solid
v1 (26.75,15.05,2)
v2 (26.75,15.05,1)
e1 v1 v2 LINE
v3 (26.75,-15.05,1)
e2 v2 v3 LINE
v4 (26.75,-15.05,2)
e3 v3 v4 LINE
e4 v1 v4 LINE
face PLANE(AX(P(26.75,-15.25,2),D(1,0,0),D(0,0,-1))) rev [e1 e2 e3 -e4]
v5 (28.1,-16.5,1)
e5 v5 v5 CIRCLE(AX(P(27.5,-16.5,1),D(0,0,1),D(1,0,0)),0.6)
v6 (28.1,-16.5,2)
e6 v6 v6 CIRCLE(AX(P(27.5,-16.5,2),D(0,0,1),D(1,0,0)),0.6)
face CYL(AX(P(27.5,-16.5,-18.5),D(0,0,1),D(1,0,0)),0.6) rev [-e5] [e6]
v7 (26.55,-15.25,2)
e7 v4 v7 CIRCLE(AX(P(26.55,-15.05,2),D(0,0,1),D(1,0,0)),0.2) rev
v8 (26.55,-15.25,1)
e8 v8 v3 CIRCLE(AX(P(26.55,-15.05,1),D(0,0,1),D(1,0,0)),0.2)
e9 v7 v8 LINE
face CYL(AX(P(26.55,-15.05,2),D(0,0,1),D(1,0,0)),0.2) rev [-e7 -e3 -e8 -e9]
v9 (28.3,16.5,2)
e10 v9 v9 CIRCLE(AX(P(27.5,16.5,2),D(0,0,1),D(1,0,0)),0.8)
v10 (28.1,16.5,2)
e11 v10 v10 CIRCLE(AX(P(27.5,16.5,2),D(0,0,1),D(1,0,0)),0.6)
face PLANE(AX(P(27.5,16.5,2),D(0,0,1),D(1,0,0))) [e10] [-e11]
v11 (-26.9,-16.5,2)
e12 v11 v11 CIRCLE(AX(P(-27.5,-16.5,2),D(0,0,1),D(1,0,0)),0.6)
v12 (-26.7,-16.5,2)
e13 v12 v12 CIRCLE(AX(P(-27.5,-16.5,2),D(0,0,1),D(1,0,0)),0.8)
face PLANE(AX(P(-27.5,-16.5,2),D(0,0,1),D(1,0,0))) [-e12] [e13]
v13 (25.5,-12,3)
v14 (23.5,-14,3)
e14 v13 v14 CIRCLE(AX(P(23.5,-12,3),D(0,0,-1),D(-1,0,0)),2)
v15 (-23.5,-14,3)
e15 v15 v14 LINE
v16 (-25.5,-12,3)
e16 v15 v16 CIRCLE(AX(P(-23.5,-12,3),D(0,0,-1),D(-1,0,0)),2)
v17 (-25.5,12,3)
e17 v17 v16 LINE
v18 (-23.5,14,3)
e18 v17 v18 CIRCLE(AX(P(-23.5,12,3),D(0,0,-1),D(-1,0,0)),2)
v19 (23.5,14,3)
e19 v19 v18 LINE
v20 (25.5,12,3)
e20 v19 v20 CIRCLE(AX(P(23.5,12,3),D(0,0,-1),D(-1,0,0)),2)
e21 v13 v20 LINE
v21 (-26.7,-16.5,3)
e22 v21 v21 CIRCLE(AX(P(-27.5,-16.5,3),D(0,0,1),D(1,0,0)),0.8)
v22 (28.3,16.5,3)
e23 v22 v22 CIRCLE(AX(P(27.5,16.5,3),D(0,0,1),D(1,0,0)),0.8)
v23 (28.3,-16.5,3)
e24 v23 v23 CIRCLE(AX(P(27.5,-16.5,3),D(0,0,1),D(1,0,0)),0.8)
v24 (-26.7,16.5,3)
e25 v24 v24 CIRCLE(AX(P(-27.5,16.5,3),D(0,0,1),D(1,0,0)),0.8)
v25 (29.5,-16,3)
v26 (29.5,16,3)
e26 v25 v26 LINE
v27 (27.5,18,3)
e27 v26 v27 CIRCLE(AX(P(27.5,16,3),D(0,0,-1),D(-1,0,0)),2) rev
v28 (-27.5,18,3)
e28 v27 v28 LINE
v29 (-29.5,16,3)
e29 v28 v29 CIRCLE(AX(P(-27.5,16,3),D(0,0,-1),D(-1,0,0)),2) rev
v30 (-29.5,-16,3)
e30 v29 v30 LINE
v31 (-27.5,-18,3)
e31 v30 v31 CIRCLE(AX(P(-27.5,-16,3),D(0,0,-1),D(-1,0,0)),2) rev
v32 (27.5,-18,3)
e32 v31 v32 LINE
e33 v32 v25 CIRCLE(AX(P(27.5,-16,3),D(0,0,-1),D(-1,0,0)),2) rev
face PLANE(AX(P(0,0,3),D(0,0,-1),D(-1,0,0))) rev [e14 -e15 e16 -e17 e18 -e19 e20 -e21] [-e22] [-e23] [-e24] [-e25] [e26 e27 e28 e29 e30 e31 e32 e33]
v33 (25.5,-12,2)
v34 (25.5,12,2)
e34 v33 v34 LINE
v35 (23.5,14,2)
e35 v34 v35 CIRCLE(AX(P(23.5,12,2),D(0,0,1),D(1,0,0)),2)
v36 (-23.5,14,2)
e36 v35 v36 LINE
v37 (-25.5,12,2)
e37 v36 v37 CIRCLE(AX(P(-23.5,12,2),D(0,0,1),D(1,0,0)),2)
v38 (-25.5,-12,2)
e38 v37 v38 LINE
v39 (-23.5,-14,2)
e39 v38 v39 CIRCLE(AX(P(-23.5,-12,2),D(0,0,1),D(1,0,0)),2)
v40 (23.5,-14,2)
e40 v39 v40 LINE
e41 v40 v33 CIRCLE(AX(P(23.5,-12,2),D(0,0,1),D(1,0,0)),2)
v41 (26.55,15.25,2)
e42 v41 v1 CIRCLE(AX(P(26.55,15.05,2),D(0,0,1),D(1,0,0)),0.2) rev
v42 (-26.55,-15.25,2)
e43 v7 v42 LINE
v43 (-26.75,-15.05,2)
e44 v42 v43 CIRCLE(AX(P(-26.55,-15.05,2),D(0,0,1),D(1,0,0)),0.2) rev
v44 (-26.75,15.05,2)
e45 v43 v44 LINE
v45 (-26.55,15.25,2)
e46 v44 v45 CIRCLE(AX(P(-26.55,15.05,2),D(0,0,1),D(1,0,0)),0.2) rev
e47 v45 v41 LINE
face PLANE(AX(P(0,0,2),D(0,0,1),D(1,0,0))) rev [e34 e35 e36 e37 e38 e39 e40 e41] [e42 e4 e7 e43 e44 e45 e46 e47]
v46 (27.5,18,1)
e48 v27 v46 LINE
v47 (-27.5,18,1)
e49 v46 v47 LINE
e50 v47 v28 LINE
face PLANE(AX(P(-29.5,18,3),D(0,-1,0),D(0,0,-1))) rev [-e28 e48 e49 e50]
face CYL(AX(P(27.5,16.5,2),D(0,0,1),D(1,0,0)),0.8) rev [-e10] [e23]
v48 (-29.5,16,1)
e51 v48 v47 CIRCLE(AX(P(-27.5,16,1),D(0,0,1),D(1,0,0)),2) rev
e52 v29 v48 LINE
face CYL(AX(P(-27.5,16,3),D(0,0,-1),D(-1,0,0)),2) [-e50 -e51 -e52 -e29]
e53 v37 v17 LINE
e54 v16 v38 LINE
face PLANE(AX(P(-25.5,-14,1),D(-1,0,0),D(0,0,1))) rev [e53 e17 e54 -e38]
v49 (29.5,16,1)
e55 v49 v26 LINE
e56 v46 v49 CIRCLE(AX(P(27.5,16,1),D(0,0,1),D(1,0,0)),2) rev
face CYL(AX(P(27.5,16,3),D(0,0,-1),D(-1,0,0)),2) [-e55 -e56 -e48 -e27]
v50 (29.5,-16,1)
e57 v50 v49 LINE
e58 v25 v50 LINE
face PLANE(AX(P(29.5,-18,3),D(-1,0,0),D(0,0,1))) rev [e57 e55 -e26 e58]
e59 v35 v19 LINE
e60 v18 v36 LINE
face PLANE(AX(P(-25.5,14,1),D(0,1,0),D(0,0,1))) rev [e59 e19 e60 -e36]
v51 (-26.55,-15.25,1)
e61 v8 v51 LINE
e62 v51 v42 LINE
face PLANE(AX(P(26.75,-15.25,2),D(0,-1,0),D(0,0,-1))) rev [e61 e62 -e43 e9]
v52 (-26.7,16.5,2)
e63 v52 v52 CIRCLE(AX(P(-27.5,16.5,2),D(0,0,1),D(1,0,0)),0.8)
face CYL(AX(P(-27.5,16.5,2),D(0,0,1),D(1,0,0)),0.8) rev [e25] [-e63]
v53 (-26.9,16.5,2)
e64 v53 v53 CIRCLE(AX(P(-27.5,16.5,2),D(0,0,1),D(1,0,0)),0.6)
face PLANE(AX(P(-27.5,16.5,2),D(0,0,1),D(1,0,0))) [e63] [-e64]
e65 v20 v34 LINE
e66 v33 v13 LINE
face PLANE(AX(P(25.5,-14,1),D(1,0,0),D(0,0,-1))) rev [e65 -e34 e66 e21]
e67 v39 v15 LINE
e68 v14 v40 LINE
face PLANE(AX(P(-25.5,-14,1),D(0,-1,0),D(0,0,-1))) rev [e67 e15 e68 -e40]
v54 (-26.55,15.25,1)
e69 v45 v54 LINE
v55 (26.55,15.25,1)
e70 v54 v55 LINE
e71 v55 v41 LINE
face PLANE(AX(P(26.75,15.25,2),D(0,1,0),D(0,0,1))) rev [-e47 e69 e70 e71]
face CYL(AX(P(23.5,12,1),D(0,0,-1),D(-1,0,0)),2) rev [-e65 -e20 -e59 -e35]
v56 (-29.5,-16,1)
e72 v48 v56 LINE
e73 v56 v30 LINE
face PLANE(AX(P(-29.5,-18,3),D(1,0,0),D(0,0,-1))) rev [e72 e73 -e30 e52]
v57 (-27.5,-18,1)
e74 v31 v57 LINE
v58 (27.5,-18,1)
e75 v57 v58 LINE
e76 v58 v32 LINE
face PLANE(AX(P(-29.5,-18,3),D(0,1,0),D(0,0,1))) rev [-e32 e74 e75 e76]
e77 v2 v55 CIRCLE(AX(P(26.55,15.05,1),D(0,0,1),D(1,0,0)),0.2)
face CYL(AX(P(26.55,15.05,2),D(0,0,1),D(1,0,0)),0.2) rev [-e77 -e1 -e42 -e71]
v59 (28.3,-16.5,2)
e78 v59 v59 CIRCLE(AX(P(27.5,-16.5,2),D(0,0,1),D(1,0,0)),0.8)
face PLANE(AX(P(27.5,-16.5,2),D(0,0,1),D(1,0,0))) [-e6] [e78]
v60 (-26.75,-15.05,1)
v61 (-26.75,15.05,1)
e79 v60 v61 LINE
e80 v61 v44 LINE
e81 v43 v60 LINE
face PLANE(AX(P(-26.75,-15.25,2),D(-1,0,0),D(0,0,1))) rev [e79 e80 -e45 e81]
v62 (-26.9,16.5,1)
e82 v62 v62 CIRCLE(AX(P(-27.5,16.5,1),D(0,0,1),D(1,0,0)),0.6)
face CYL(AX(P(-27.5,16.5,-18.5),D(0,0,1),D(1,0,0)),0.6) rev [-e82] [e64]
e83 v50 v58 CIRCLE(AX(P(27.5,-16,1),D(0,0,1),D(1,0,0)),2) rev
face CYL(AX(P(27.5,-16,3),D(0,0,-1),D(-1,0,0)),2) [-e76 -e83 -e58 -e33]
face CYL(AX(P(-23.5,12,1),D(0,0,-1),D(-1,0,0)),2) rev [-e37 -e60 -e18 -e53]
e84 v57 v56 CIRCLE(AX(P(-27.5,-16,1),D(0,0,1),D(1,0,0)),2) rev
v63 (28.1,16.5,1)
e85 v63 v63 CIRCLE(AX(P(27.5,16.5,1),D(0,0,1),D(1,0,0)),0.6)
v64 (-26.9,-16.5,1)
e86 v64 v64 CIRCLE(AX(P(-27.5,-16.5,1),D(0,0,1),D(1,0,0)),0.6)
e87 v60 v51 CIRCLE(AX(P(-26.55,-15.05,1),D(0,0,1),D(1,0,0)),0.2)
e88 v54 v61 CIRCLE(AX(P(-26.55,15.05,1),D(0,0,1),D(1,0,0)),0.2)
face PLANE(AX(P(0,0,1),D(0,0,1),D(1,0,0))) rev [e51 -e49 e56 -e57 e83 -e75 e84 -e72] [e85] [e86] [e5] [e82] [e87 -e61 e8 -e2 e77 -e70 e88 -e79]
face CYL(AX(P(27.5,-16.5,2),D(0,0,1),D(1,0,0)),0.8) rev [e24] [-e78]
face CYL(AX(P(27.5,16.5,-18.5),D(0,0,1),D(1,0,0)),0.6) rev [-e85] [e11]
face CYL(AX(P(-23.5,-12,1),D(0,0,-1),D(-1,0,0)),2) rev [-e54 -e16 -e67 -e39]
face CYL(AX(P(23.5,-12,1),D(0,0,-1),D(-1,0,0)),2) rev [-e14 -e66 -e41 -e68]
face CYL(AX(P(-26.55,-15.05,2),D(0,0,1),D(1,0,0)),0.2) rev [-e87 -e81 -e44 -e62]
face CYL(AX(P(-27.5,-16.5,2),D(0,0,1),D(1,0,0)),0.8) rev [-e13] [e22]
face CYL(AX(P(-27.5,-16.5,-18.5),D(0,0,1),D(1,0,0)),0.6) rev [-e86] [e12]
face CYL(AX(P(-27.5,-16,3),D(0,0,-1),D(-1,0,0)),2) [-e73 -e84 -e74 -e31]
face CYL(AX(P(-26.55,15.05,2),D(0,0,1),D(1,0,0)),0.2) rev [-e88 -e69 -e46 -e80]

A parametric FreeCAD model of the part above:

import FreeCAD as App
import Part
import Sketcher
from FreeCAD import Vector


def edges_at(feature, points):
    """Names of the edges that pass closest to the given points."""
    edges = feature.Shape.Edges
    near = lambda p: min(range(len(edges)), key=lambda i: edges[i].distToShape(Part.Vertex(*p))[0])
    return sorted({f"Edge{near(p) + 1}" for p in points})

doc = App.newDocument("Part")
body = doc.addObject("PartDesign::Body", "Body")

# Sketch on XY plane
sketch1 = body.newObject("Sketcher::SketchObject", "Sketch")
sketch1.AttachmentSupport = (doc.getObject("XY_Plane"), [""])
sketch1.MapMode = "FlatFace"
sketch1.addGeometry(Part.LineSegment(Vector(-29.5, 18, 0), Vector(-29.5, -18, 0)), False)
sketch1.addGeometry(Part.LineSegment(Vector(-29.5, -18, 0), Vector(29.5, -18, 0)), False)
sketch1.addGeometry(Part.LineSegment(Vector(29.5, -18, 0), Vector(29.5, 18, 0)), False)
sketch1.addGeometry(Part.LineSegment(Vector(29.5, 18, 0), Vector(-29.5, 18, 0)), False)
sketch1.addConstraint(Sketcher.Constraint("Coincident", 0, 2, 1, 1))
sketch1.addConstraint(Sketcher.Constraint("Coincident", 1, 2, 2, 1))
sketch1.addConstraint(Sketcher.Constraint("Coincident", 2, 2, 3, 1))
sketch1.addConstraint(Sketcher.Constraint("Coincident", 3, 2, 0, 1))
sketch1.addConstraint(Sketcher.Constraint("Vertical", 0))
sketch1.addConstraint(Sketcher.Constraint("Horizontal", 1))
sketch1.addConstraint(Sketcher.Constraint("Vertical", 2))
sketch1.addConstraint(Sketcher.Constraint("Horizontal", 3))
sketch1.addConstraint(Sketcher.Constraint("Symmetric", 0, 2, 2, 2, -1, 1))
sketch1.addConstraint(Sketcher.Constraint("DistanceX", 1, 1, 1, 2, 59.0))
sketch1.addConstraint(Sketcher.Constraint("DistanceY", 0, 2, 0, 1, 36.0))
pad1 = body.newObject("PartDesign::Pad", "Pad")
pad1.Profile = sketch1
pad1.Length = 3

# Sketch on XY plane
sketch2 = body.newObject("Sketcher::SketchObject", "Sketch001")
sketch2.AttachmentSupport = (doc.getObject("XY_Plane"), [""])
sketch2.MapMode = "FlatFace"
sketch2.addGeometry(Part.LineSegment(Vector(26.75, 15.25, 0), Vector(26.75, -15.25, 0)), False)
sketch2.addGeometry(Part.LineSegment(Vector(26.75, -15.25, 0), Vector(-26.75, -15.25, 0)), False)
sketch2.addGeometry(Part.LineSegment(Vector(-26.75, -15.25, 0), Vector(-26.75, 15.25, 0)), False)
sketch2.addGeometry(Part.LineSegment(Vector(-26.75, 15.25, 0), Vector(26.75, 15.25, 0)), False)
sketch2.addConstraint(Sketcher.Constraint("Coincident", 0, 2, 1, 1))
sketch2.addConstraint(Sketcher.Constraint("Coincident", 1, 2, 2, 1))
sketch2.addConstraint(Sketcher.Constraint("Coincident", 2, 2, 3, 1))
sketch2.addConstraint(Sketcher.Constraint("Coincident", 3, 2, 0, 1))
sketch2.addConstraint(Sketcher.Constraint("Vertical", 0))
sketch2.addConstraint(Sketcher.Constraint("Horizontal", 1))
sketch2.addConstraint(Sketcher.Constraint("Vertical", 2))
sketch2.addConstraint(Sketcher.Constraint("Horizontal", 3))
sketch2.addConstraint(Sketcher.Constraint("Symmetric", 0, 2, 2, 2, -1, 1))
sketch2.addConstraint(Sketcher.Constraint("DistanceX", 1, 2, 1, 1, 53.5))
sketch2.addConstraint(Sketcher.Constraint("DistanceY", 0, 2, 0, 1, 30.5))
pocket1 = body.newObject("PartDesign::Pocket", "Pocket")
pocket1.Profile = sketch2
pocket1.Length = 2
pocket1.Reversed = True

# Sketch on XY plane
sketch3 = body.newObject("Sketcher::SketchObject", "Sketch002")
sketch3.AttachmentSupport = (doc.getObject("XY_Plane"), [""])
sketch3.MapMode = "FlatFace"
sketch3.AttachmentOffset = App.Placement(Vector(0, 0, 3), App.Rotation())
sketch3.addGeometry(Part.LineSegment(Vector(-25.5, 14, 0), Vector(-25.5, -14, 0)), False)
sketch3.addGeometry(Part.LineSegment(Vector(-25.5, -14, 0), Vector(25.5, -14, 0)), False)
sketch3.addGeometry(Part.LineSegment(Vector(25.5, -14, 0), Vector(25.5, 14, 0)), False)
sketch3.addGeometry(Part.LineSegment(Vector(25.5, 14, 0), Vector(-25.5, 14, 0)), False)
sketch3.addConstraint(Sketcher.Constraint("Coincident", 0, 2, 1, 1))
sketch3.addConstraint(Sketcher.Constraint("Coincident", 1, 2, 2, 1))
sketch3.addConstraint(Sketcher.Constraint("Coincident", 2, 2, 3, 1))
sketch3.addConstraint(Sketcher.Constraint("Coincident", 3, 2, 0, 1))
sketch3.addConstraint(Sketcher.Constraint("Vertical", 0))
sketch3.addConstraint(Sketcher.Constraint("Horizontal", 1))
sketch3.addConstraint(Sketcher.Constraint("Vertical", 2))
sketch3.addConstraint(Sketcher.Constraint("Horizontal", 3))
sketch3.addConstraint(Sketcher.Constraint("Symmetric", 0, 2, 2, 2, -1, 1))
sketch3.addConstraint(Sketcher.Constraint("DistanceX", 1, 1, 1, 2, 51.0))
sketch3.addConstraint(Sketcher.Constraint("DistanceY", 0, 2, 0, 1, 28.0))
pocket2 = body.newObject("PartDesign::Pocket", "Pocket001")
pocket2.Profile = sketch3
pocket2.Length = 2
doc.recompute()

fillet = body.newObject("PartDesign::Fillet", "Fillet")
fillet.Base = (pocket2, edges_at(pocket2, [
    (25.5, 14, 2.5),
    (25.5, -14, 2.5),
    (-25.5, -14, 2.5),
    (-25.5, 14, 2.5),
    (29.5, -18, 1.5),
    (-29.5, -18, 1.5),
    (-29.5, 18, 1.5),
    (29.5, 18, 1.5),
]))
fillet.Radius = 2

# Sketch on XY plane
sketch4 = body.newObject("Sketcher::SketchObject", "Sketch003")
sketch4.AttachmentSupport = (doc.getObject("XY_Plane"), [""])
sketch4.MapMode = "FlatFace"
sketch4.addGeometry(Part.LineSegment(Vector(32.045646, 18.031348, 0), Vector(32.045646, -18.031348, 0)), False)
sketch4.addGeometry(Part.LineSegment(Vector(32.045646, -18.031348, 0), Vector(-32.045646, -18.031348, 0)), False)
sketch4.addGeometry(Part.LineSegment(Vector(-32.045646, -18.031348, 0), Vector(-32.045646, 18.031348, 0)), False)
sketch4.addGeometry(Part.LineSegment(Vector(-32.045646, 18.031348, 0), Vector(32.045646, 18.031348, 0)), False)
sketch4.addConstraint(Sketcher.Constraint("Coincident", 0, 2, 1, 1))
sketch4.addConstraint(Sketcher.Constraint("Coincident", 1, 2, 2, 1))
sketch4.addConstraint(Sketcher.Constraint("Coincident", 2, 2, 3, 1))
sketch4.addConstraint(Sketcher.Constraint("Coincident", 3, 2, 0, 1))
sketch4.addConstraint(Sketcher.Constraint("Vertical", 0))
sketch4.addConstraint(Sketcher.Constraint("Horizontal", 1))
sketch4.addConstraint(Sketcher.Constraint("Vertical", 2))
sketch4.addConstraint(Sketcher.Constraint("Horizontal", 3))
sketch4.addConstraint(Sketcher.Constraint("Symmetric", 0, 2, 2, 2, -1, 1))
sketch4.addConstraint(Sketcher.Constraint("DistanceX", 1, 2, 1, 1, 64.091292))
sketch4.addConstraint(Sketcher.Constraint("DistanceY", 0, 2, 0, 1, 36.062695))
pocket3 = body.newObject("PartDesign::Pocket", "Pocket002")
pocket3.Profile = sketch4
pocket3.Length = 1
pocket3.Reversed = True
doc.recompute()

fillet2 = body.newObject("PartDesign::Fillet", "Fillet001")
fillet2.Base = (pocket3, edges_at(pocket3, [
    (-26.75, 15.25, 1.5),
    (-26.75, -15.25, 1.5),
    (26.75, -15.25, 1.5),
    (26.75, 15.25, 1.5),
]))
fillet2.Radius = 0.2

# Sketch on XY plane
sketch5 = body.newObject("Sketcher::SketchObject", "Sketch004")
sketch5.AttachmentSupport = (doc.getObject("XY_Plane"), [""])
sketch5.MapMode = "FlatFace"
sketch5.AttachmentOffset = App.Placement(Vector(0, 0, 3), App.Rotation())
sketch5.addGeometry(Part.Circle(Vector(-27.5, 16.5, 0), Vector(0, 0, 1), 0.8), False)
sketch5.addGeometry(Part.Circle(Vector(27.5, 16.5, 0), Vector(0, 0, 1), 0.8), False)
sketch5.addGeometry(Part.Circle(Vector(27.5, -16.5, 0), Vector(0, 0, 1), 0.8), False)
sketch5.addGeometry(Part.Circle(Vector(-27.5, -16.5, 0), Vector(0, 0, 1), 0.8), False)
sketch5.addConstraint(Sketcher.Constraint("Equal", 0, 1))
sketch5.addConstraint(Sketcher.Constraint("Equal", 1, 2))
sketch5.addConstraint(Sketcher.Constraint("Equal", 2, 3))
sketch5.addConstraint(Sketcher.Constraint("Symmetric", 0, 3, 2, 3, -1, 1))
sketch5.addConstraint(Sketcher.Constraint("Symmetric", 1, 3, 3, 3, -1, 1))
sketch5.addConstraint(Sketcher.Constraint("Symmetric", 0, 3, 1, 3, -2))
sketch5.addConstraint(Sketcher.Constraint("Diameter", 0, 1.6))
sketch5.addConstraint(Sketcher.Constraint("DistanceX", 0, 3, 1, 3, 55.0))
sketch5.addConstraint(Sketcher.Constraint("DistanceY", 2, 3, 1, 3, 33.0))
pocket4 = body.newObject("PartDesign::Pocket", "Pocket003")
pocket4.Profile = sketch5
pocket4.Length = 1

# Sketch on XY plane
sketch6 = body.newObject("Sketcher::SketchObject", "Sketch005")
sketch6.AttachmentSupport = (doc.getObject("XY_Plane"), [""])
sketch6.MapMode = "FlatFace"
sketch6.AttachmentOffset = App.Placement(Vector(0, 0, 2), App.Rotation())
sketch6.addGeometry(Part.Circle(Vector(-27.5, 16.5, 0), Vector(0, 0, 1), 0.6), False)
sketch6.addGeometry(Part.Circle(Vector(27.5, 16.5, 0), Vector(0, 0, 1), 0.6), False)
sketch6.addGeometry(Part.Circle(Vector(27.5, -16.5, 0), Vector(0, 0, 1), 0.6), False)
sketch6.addGeometry(Part.Circle(Vector(-27.5, -16.5, 0), Vector(0, 0, 1), 0.6), False)
sketch6.addConstraint(Sketcher.Constraint("Equal", 0, 1))
sketch6.addConstraint(Sketcher.Constraint("Equal", 1, 2))
sketch6.addConstraint(Sketcher.Constraint("Equal", 2, 3))
sketch6.addConstraint(Sketcher.Constraint("Symmetric", 0, 3, 2, 3, -1, 1))
sketch6.addConstraint(Sketcher.Constraint("Symmetric", 1, 3, 3, 3, -1, 1))
sketch6.addConstraint(Sketcher.Constraint("Symmetric", 0, 3, 1, 3, -2))
sketch6.addConstraint(Sketcher.Constraint("Diameter", 0, 1.2))
sketch6.addConstraint(Sketcher.Constraint("DistanceX", 0, 3, 1, 3, 55.0))
sketch6.addConstraint(Sketcher.Constraint("DistanceY", 2, 3, 1, 3, 33.0))
pocket5 = body.newObject("PartDesign::Pocket", "Pocket004")
pocket5.Profile = sketch6
pocket5.Length = 20.5

doc.recompute()
